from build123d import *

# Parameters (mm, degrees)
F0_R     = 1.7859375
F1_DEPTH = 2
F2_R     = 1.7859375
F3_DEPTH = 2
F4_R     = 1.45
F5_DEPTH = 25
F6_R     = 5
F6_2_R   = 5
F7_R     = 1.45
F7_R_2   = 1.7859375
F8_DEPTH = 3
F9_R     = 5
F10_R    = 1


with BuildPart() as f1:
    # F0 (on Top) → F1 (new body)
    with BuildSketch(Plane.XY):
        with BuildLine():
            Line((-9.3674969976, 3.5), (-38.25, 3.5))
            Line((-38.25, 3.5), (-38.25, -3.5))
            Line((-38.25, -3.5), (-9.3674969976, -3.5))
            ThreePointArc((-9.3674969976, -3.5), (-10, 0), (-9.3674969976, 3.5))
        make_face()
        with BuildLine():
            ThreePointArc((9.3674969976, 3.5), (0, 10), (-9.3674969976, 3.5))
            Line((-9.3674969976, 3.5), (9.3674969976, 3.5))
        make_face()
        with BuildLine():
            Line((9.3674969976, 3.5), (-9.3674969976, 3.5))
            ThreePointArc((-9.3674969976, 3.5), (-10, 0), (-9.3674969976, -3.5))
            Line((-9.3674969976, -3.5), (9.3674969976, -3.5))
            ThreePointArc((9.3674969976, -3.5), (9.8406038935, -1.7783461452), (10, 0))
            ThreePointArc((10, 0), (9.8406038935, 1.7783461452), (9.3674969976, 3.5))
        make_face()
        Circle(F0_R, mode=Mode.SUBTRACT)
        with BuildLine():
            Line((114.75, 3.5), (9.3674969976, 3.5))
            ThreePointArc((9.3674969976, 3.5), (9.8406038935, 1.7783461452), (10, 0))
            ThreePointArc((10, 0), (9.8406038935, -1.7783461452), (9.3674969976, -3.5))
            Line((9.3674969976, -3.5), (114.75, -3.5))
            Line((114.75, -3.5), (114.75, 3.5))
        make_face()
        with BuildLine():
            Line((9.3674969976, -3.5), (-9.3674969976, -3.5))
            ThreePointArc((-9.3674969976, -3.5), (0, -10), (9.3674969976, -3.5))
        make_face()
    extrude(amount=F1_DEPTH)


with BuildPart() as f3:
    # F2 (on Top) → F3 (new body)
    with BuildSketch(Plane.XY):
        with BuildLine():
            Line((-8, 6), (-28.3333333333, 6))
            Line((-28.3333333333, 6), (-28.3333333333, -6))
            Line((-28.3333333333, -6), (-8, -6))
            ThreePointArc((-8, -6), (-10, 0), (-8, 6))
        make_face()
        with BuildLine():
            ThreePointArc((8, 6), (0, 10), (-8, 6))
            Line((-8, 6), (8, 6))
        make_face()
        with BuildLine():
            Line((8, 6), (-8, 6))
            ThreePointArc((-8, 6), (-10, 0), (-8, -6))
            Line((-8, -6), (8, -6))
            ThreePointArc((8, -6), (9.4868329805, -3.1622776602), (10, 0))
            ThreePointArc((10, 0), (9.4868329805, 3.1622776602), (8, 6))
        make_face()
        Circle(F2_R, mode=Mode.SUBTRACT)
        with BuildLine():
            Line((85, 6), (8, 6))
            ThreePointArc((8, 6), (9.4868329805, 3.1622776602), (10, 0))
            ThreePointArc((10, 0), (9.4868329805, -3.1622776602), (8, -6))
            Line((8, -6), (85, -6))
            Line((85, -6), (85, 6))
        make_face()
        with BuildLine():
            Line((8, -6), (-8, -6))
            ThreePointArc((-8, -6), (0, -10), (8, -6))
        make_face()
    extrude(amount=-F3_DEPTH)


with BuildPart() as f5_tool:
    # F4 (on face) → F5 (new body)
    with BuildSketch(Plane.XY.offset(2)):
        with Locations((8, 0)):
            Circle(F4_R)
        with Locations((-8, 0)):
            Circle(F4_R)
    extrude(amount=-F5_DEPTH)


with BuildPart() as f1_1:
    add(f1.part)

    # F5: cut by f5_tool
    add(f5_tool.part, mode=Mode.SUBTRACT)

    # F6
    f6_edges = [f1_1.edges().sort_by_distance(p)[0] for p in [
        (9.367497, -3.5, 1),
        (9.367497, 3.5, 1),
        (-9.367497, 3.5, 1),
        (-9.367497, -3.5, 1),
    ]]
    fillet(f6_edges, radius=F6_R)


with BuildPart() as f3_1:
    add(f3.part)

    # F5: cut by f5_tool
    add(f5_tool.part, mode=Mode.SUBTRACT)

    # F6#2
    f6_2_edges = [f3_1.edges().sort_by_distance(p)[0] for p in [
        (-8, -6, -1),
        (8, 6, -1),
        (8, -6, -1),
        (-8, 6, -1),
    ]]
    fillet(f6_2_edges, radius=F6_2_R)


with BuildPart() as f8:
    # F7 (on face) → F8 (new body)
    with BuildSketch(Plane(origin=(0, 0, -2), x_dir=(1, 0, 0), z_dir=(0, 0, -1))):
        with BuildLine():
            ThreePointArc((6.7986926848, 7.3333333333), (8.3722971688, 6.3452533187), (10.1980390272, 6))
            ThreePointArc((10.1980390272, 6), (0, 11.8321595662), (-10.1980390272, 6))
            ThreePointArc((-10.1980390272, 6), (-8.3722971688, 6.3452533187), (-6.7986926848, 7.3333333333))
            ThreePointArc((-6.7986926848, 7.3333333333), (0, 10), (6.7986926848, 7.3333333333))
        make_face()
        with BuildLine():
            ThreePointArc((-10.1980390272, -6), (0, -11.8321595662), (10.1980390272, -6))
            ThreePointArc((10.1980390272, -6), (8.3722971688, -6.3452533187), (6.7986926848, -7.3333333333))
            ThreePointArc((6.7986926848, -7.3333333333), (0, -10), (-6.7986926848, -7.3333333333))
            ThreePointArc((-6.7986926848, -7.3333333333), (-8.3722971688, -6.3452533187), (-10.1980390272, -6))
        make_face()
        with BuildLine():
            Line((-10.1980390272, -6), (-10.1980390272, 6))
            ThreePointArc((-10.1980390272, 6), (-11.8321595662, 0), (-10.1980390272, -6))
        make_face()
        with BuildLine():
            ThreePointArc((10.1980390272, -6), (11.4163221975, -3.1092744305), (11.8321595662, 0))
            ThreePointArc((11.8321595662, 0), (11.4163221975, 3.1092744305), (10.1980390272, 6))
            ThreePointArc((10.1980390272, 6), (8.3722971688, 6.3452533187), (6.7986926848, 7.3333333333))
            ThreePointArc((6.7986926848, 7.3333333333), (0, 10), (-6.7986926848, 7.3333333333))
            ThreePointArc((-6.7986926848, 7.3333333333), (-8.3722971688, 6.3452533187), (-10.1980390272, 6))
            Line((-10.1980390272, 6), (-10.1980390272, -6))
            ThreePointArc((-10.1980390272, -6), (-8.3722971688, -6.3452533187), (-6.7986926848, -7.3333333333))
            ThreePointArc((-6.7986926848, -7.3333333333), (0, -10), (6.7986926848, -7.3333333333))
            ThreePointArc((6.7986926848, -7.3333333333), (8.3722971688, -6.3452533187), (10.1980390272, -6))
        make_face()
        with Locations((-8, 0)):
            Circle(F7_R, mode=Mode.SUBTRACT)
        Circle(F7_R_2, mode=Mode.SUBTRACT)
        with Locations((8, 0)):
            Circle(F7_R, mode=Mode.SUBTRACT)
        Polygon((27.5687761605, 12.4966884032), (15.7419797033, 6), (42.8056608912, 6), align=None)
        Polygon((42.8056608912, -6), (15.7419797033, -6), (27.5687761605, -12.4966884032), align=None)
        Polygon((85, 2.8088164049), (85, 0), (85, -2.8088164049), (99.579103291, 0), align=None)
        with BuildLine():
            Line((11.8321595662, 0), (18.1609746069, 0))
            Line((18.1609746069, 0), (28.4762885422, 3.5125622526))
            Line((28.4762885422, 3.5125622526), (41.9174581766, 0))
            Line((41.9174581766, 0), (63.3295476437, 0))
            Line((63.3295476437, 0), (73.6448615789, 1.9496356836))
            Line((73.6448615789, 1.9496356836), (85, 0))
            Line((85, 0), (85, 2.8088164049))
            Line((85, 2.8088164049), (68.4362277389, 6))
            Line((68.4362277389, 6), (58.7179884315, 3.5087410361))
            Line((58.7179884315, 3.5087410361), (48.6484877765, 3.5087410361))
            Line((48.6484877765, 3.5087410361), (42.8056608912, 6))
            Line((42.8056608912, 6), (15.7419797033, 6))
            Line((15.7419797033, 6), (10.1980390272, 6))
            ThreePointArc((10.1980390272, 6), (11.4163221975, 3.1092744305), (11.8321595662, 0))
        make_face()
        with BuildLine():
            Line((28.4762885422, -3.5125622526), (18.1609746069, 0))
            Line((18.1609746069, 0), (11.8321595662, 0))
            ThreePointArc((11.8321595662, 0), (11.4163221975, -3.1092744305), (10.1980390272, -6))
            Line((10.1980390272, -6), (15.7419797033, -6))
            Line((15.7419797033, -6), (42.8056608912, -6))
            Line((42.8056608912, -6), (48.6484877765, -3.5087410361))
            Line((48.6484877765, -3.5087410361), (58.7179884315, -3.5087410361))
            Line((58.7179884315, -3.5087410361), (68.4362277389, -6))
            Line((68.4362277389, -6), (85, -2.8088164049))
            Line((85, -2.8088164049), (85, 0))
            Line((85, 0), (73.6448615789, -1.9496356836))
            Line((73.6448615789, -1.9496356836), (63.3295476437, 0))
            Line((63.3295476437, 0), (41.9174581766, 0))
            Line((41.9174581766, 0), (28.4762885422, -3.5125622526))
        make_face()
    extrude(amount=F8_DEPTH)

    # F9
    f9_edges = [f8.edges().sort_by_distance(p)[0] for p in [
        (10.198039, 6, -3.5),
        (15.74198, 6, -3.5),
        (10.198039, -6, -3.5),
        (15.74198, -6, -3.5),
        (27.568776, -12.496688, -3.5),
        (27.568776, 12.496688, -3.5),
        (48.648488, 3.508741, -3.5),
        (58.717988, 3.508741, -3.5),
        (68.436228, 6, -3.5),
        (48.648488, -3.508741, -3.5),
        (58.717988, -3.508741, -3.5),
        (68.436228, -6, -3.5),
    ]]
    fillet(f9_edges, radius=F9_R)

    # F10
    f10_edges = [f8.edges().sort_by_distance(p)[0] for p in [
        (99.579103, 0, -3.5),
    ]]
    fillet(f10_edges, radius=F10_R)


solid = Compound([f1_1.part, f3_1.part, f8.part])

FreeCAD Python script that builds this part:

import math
import FreeCAD as App
import Part
import Sketcher
Q = App.Units.Quantity


def edges_at(feature, points):
    """Names of the edges that pass closest to the given points."""
    edges = feature.Shape.Edges
    near = lambda p: min(range(len(edges)), key=lambda i: edges[i].distToShape(Part.Vertex(*p))[0])
    return sorted({f"Edge{near(p) + 1}" for p in points})


def add_polygon(sketch, points):
    """Adds a closed chain of lines whose ends are joined by coincident constraints."""
    first, n = sketch.GeometryCount, len(points)
    for a, b in zip(points, points[1:] + points[:1]):
        sketch.addGeometry(Part.LineSegment(App.Vector(*a, 0), App.Vector(*b, 0)), False)
    for i in range(n):
        sketch.addConstraint(Sketcher.Constraint("Coincident", first + i, 2, first + (i + 1) % n, 1))

doc = App.newDocument("Part")
body = doc.addObject("PartDesign::Body", "Body")

# Sketch on XY plane
sketch1 = doc.addObject("Sketcher::SketchObject", "Sketch")
body.addObject(sketch1)
sketch1.AttachmentSupport = (doc.XY_Plane, [""])
sketch1.MapMode = "FlatFace"
sketch1.addGeometry(Part.LineSegment(App.Vector(-9.4, 3.5, 0), App.Vector(-38.2, 3.5, 0)), False)
sketch1.addGeometry(Part.LineSegment(App.Vector(-38.2, 3.5, 0), App.Vector(-38.2, -3.5, 0)), False)
sketch1.addGeometry(Part.LineSegment(App.Vector(-38.2, -3.5, 0), App.Vector(-9.4, -3.5, 0)), False)
sketch1.addGeometry(Part.ArcOfCircle(Part.Circle(App.Vector(0, 0, 0), App.Vector(0, 0, 1), 10), math.radians(-160), math.radians(-20)), False)
sketch1.addGeometry(Part.LineSegment(App.Vector(9.4, -3.5, 0), App.Vector(114.8, -3.5, 0)), False)
sketch1.addGeometry(Part.LineSegment(App.Vector(114.8, -3.5, 0), App.Vector(114.8, 3.5, 0)), False)
sketch1.addGeometry(Part.LineSegment(App.Vector(114.8, 3.5, 0), App.Vector(9.4, 3.5, 0)), False)
sketch1.addGeometry(Part.ArcOfCircle(Part.Circle(App.Vector(0, 0, 0), App.Vector(0, 0, 1), 10), math.radians(20), math.radians(160)), False)
sketch1.addGeometry(Part.Circle(App.Vector(0, 0, 0), App.Vector(0, 0, 1), 1.8), False)
sketch1.addConstraint(Sketcher.Constraint("Coincident", 0, 2, 1, 1))
sketch1.addConstraint(Sketcher.Constraint("Coincident", 1, 2, 2, 1))
sketch1.addConstraint(Sketcher.Constraint("Coincident", 2, 2, 3, 1))
sketch1.addConstraint(Sketcher.Constraint("Coincident", 3, 2, 4, 1))
sketch1.addConstraint(Sketcher.Constraint("Coincident", 4, 2, 5, 1))
sketch1.addConstraint(Sketcher.Constraint("Coincident", 5, 2, 6, 1))
sketch1.addConstraint(Sketcher.Constraint("Coincident", 6, 2, 7, 1))
sketch1.addConstraint(Sketcher.Constraint("Coincident", 7, 2, 0, 1))
sketch1.addConstraint(Sketcher.Constraint("Horizontal", 0))
sketch1.addConstraint(Sketcher.Constraint("Vertical", 1))
sketch1.addConstraint(Sketcher.Constraint("Horizontal", 2))
sketch1.addConstraint(Sketcher.Constraint("Horizontal", 4))
sketch1.addConstraint(Sketcher.Constraint("Vertical", 5))
sketch1.addConstraint(Sketcher.Constraint("Horizontal", 6))
sketch1.addConstraint(Sketcher.Constraint("Coincident", 3, 3, -1, 1))
sketch1.addConstraint(Sketcher.Constraint("Coincident", 7, 3, -1, 1))
sketch1.addConstraint(Sketcher.Constraint("Coincident", 8, 3, -1, 1))
sketch1.addConstraint(Sketcher.Constraint("Equal", 3, 7))
sketch1.addConstraint(Sketcher.Constraint("Horizontal", 2, 2, 3, 2))
sketch1.addConstraint(Sketcher.Constraint("Horizontal", 0, 2, 5, 2))
sketch1.addConstraint(Sketcher.Constraint("Vertical", 3, 2, 6, 2))
sketch1.addConstraint(Sketcher.Constraint("Radius", 3, Q("10 mm")))
sketch1.addConstraint(Sketcher.Constraint("DistanceY", 1, 2, 1, 1, Q("7 mm")))
sketch1.addConstraint(Sketcher.Constraint("DistanceX", 0, 2, -1, 1, Q("38.25 mm")))
sketch1.addConstraint(Sketcher.Constraint("DistanceX", -1, 1, 4, 2, Q("114.75 mm")))
sketch1.addConstraint(Sketcher.Constraint("Diameter", 8, Q("3.571875 mm")))
pad1 = doc.addObject("PartDesign::Pad", "Pad")
body.addObject(pad1)
pad1.Profile = sketch1
pad1.Length = 2
body2 = doc.addObject("PartDesign::Body", "Body001")

# Sketch on XY plane
sketch2 = doc.addObject("Sketcher::SketchObject", "Sketch001")
body2.addObject(sketch2)
sketch2.AttachmentSupport = (doc.getObject("XY_Plane001"), [""])
sketch2.MapMode = "FlatFace"
sketch2.addGeometry(Part.LineSegment(App.Vector(-8, 6, 0), App.Vector(-28.3, 6, 0)), False)
sketch2.addGeometry(Part.LineSegment(App.Vector(-28.3, 6, 0), App.Vector(-28.3, -6, 0)), False)
sketch2.addGeometry(Part.LineSegment(App.Vector(-28.3, -6, 0), App.Vector(-8, -6, 0)), False)
sketch2.addGeometry(Part.ArcOfCircle(Part.Circle(App.Vector(0, 0, 0), App.Vector(0, 0, 1), 10), math.radians(-143), math.radians(-37)), False)
sketch2.addGeometry(Part.LineSegment(App.Vector(8, -6, 0), App.Vector(85, -6, 0)), False)
sketch2.addGeometry(Part.LineSegment(App.Vector(85, -6, 0), App.Vector(85, 6, 0)), False)
sketch2.addGeometry(Part.LineSegment(App.Vector(85, 6, 0), App.Vector(8, 6, 0)), False)
sketch2.addGeometry(Part.ArcOfCircle(Part.Circle(App.Vector(0, 0, 0), App.Vector(0, 0, 1), 10), math.radians(37), math.radians(143)), False)
sketch2.addGeometry(Part.Circle(App.Vector(0, 0, 0), App.Vector(0, 0, 1), 1.8), False)
sketch2.addConstraint(Sketcher.Constraint("Coincident", 0, 2, 1, 1))
sketch2.addConstraint(Sketcher.Constraint("Coincident", 1, 2, 2, 1))
sketch2.addConstraint(Sketcher.Constraint("Coincident", 2, 2, 3, 1))
sketch2.addConstraint(Sketcher.Constraint("Coincident", 3, 2, 4, 1))
sketch2.addConstraint(Sketcher.Constraint("Coincident", 4, 2, 5, 1))
sketch2.addConstraint(Sketcher.Constraint("Coincident", 5, 2, 6, 1))
sketch2.addConstraint(Sketcher.Constraint("Coincident", 6, 2, 7, 1))
sketch2.addConstraint(Sketcher.Constraint("Coincident", 7, 2, 0, 1))
sketch2.addConstraint(Sketcher.Constraint("Horizontal", 0))
sketch2.addConstraint(Sketcher.Constraint("Vertical", 1))
sketch2.addConstraint(Sketcher.Constraint("Horizontal", 2))
sketch2.addConstraint(Sketcher.Constraint("Horizontal", 4))
sketch2.addConstraint(Sketcher.Constraint("Vertical", 5))
sketch2.addConstraint(Sketcher.Constraint("Horizontal", 6))
sketch2.addConstraint(Sketcher.Constraint("Coincident", 3, 3, -1, 1))
sketch2.addConstraint(Sketcher.Constraint("Coincident", 7, 3, -1, 1))
sketch2.addConstraint(Sketcher.Constraint("Coincident", 8, 3, -1, 1))
sketch2.addConstraint(Sketcher.Constraint("Equal", 3, 7))
sketch2.addConstraint(Sketcher.Constraint("Horizontal", 2, 2, 3, 2))
sketch2.addConstraint(Sketcher.Constraint("Horizontal", 0, 2, 5, 2))
sketch2.addConstraint(Sketcher.Constraint("Vertical", 3, 2, 6, 2))
sketch2.addConstraint(Sketcher.Constraint("Radius", 3, Q("10 mm")))
sketch2.addConstraint(Sketcher.Constraint("DistanceX", 4, 1, 4, 2, Q("77 mm")))
sketch2.addConstraint(Sketcher.Constraint("DistanceY", 1, 2, 1, 1, Q("12 mm")))
sketch2.addConstraint(Sketcher.Constraint("Diameter", 8, Q("3.571875 mm")))
sketch2.addConstraint(Sketcher.Constraint("DistanceX", 0, 2, 0, 1, Q("20.333333 mm")))
pad2 = doc.addObject("PartDesign::Pad", "Pad001")
body2.addObject(pad2)
pad2.Profile = sketch2
pad2.Length = 2
pad2.Reversed = True
body3 = doc.addObject("PartDesign::Body", "Body002")
body3.AllowCompound = True

# Sketch on XY plane
sketch3 = doc.addObject("Sketcher::SketchObject", "Sketch002")
body3.addObject(sketch3)
sketch3.AttachmentSupport = (doc.getObject("XY_Plane002"), [""])
sketch3.MapMode = "FlatFace"
sketch3.AttachmentOffset = App.Placement(App.Vector(0, 0, 2), App.Rotation())
sketch3.addGeometry(Part.Circle(App.Vector(8, 0, 0), App.Vector(0, 0, 1), 1.4), False)
sketch3.addGeometry(Part.Circle(App.Vector(-8, 0, 0), App.Vector(0, 0, 1), 1.4), False)
sketch3.addConstraint(Sketcher.Constraint("Equal", 0, 1))
sketch3.addConstraint(Sketcher.Constraint("Symmetric", 0, 3, 1, 3, -1, 1))
sketch3.addConstraint(Sketcher.Constraint("PointOnObject", 0, 3, -1))
sketch3.addConstraint(Sketcher.Constraint("Diameter", 0, Q("2.9 mm")))
sketch3.addConstraint(Sketcher.Constraint("DistanceX", -1, 1, 0, 3, Q("8 mm")))
pad3 = doc.addObject("PartDesign::Pad", "Pad002")
body3.addObject(pad3)
pad3.Profile = sketch3
pad3.Length = 25
pad3.Reversed = True
doc.recompute()

body4 = doc.addObject("PartDesign::Body", "Body003")
body4.BaseFeature = body3
boolean = doc.addObject("PartDesign::Boolean", "Boolean")
body.addObject(boolean)
boolean.Type = "Cut"
boolean.addObjects([body4])
doc.recompute()

fillet = doc.addObject("PartDesign::Fillet", "Fillet")
body.addObject(fillet)
fillet.Base = (boolean, edges_at(boolean, [
    (9.367, -3.5, 1),
    (9.367, 3.5, 1),
    (-9.367, 3.5, 1),
    (-9.367, -3.5, 1),
]))
fillet.Radius = 5
doc.recompute()

boolean2 = doc.addObject("PartDesign::Boolean", "Boolean001")
body2.addObject(boolean2)
boolean2.Type = "Cut"
boolean2.addObjects([body3])
doc.recompute()

fillet2 = doc.addObject("PartDesign::Fillet", "Fillet001")
body2.addObject(fillet2)
fillet2.Base = (boolean2, edges_at(boolean2, [
    (-8, -6, -1),
    (8, 6, -1),
    (8, -6, -1),
    (-8, 6, -1),
]))
fillet2.Radius = 5
body5 = doc.addObject("PartDesign::Body", "Body004")

# Sketch on XY plane
sketch4 = doc.addObject("Sketcher::SketchObject", "Sketch003")
body5.addObject(sketch4)
sketch4.AttachmentSupport = (doc.getObject("XY_Plane004"), [""])
sketch4.MapMode = "FlatFace"
sketch4.AttachmentOffset = App.Placement(App.Vector(0, 0, -2), App.Rotation())
sketch4.addGeometry(Part.ArcOfCircle(Part.Circle(App.Vector(0, 0, 0), App.Vector(0, 0, 1), 11.8), math.radians(-150), math.radians(-30)), False)  # 0
sketch4.addGeometry(Part.ArcOfCircle(Part.Circle(App.Vector(0, 0, 0), App.Vector(0, 0, 1), 11.8), math.radians(150), math.radians(210)), False)  # 1
sketch4.addGeometry(Part.ArcOfCircle(Part.Circle(App.Vector(0, 0, 0), App.Vector(0, 0, 1), 11.8), math.radians(30), math.radians(150)), False)  # 2
sketch4.addGeometry(Part.LineSegment(App.Vector(10.2, 6, 0), App.Vector(15.7, 6, 0)), False)  # 3
sketch4.addGeometry(Part.LineSegment(App.Vector(15.7, 6, 0), App.Vector(27.6, 12.5, 0)), False)  # 4
sketch4.addGeometry(Part.LineSegment(App.Vector(27.6, 12.5, 0), App.Vector(42.8, 6, 0)), False)  # 5
sketch4.addGeometry(Part.LineSegment(App.Vector(42.8, 6, 0), App.Vector(48.6, 3.5, 0)), False)  # 6
sketch4.addGeometry(Part.LineSegment(App.Vector(48.6, 3.5, 0), App.Vector(58.7, 3.5, 0)), False)  # 7
sketch4.addGeometry(Part.LineSegment(App.Vector(58.7, 3.5, 0), App.Vector(68.4, 6, 0)), False)  # 8
sketch4.addGeometry(Part.LineSegment(App.Vector(68.4, 6, 0), App.Vector(85, 2.8, 0)), False)  # 9
sketch4.addGeometry(Part.LineSegment(App.Vector(85, 2.8, 0), App.Vector(99.6, 0, 0)), False)  # 10
sketch4.addGeometry(Part.LineSegment(App.Vector(99.6, 0, 0), App.Vector(85, -2.8, 0)), False)  # 11
sketch4.addGeometry(Part.LineSegment(App.Vector(85, -2.8, 0), App.Vector(68.4, -6, 0)), False)  # 12
sketch4.addGeometry(Part.LineSegment(App.Vector(68.4, -6, 0), App.Vector(58.7, -3.5, 0)), False)  # 13
sketch4.addGeometry(Part.LineSegment(App.Vector(58.7, -3.5, 0), App.Vector(48.6, -3.5, 0)), False)  # 14
sketch4.addGeometry(Part.LineSegment(App.Vector(48.6, -3.5, 0), App.Vector(42.8, -6, 0)), False)  # 15
sketch4.addGeometry(Part.LineSegment(App.Vector(42.8, -6, 0), App.Vector(27.6, -12.5, 0)), False)  # 16
sketch4.addGeometry(Part.LineSegment(App.Vector(27.6, -12.5, 0), App.Vector(15.7, -6, 0)), False)  # 17
sketch4.addGeometry(Part.LineSegment(App.Vector(15.7, -6, 0), App.Vector(10.2, -6, 0)), False)  # 18
add_polygon(sketch4, [(18.2, 0), (28.5, -3.5), (41.9, 0), (28.5, 3.5)])  # lines 19-22
add_polygon(sketch4, [(63.3, 0), (73.6, -1.9), (85, 0), (73.6, 1.9)])  # lines 23-26
sketch4.addGeometry(Part.Circle(App.Vector(-8, 0, 0), App.Vector(0, 0, 1), 1.4), False)  # 27
sketch4.addGeometry(Part.Circle(App.Vector(0, 0, 0), App.Vector(0, 0, 1), 1.8), False)  # 28
sketch4.addGeometry(Part.Circle(App.Vector(8, 0, 0), App.Vector(0, 0, 1), 1.4), False)  # 29
sketch4.addConstraint(Sketcher.Constraint("Tangent", 0, 1, 1, 2))
sketch4.addConstraint(Sketcher.Constraint("Tangent", 1, 1, 2, 2))
sketch4.addConstraint(Sketcher.Constraint("Coincident", 2, 1, 3, 1))
sketch4.addConstraint(Sketcher.Constraint("Coincident", 3, 2, 4, 1))
sketch4.addConstraint(Sketcher.Constraint("Coincident", 4, 2, 5, 1))
sketch4.addConstraint(Sketcher.Constraint("Coincident", 5, 2, 6, 1))
sketch4.addConstraint(Sketcher.Constraint("Coincident", 6, 2, 7, 1))
sketch4.addConstraint(Sketcher.Constraint("Coincident", 7, 2, 8, 1))
sketch4.addConstraint(Sketcher.Constraint("Coincident", 8, 2, 9, 1))
sketch4.addConstraint(Sketcher.Constraint("Coincident", 9, 2, 10, 1))
sketch4.addConstraint(Sketcher.Constraint("Coincident", 10, 2, 11, 1))
sketch4.addConstraint(Sketcher.Constraint("Coincident", 11, 2, 12, 1))
sketch4.addConstraint(Sketcher.Constraint("Coincident", 12, 2, 13, 1))
sketch4.addConstraint(Sketcher.Constraint("Coincident", 13, 2, 14, 1))
sketch4.addConstraint(Sketcher.Constraint("Coincident", 14, 2, 15, 1))
sketch4.addConstraint(Sketcher.Constraint("Coincident", 15, 2, 16, 1))
sketch4.addConstraint(Sketcher.Constraint("Coincident", 16, 2, 17, 1))
sketch4.addConstraint(Sketcher.Constraint("Coincident", 17, 2, 18, 1))
sketch4.addConstraint(Sketcher.Constraint("Coincident", 18, 2, 0, 2))
sketch4.addConstraint(Sketcher.Constraint("Horizontal", 3))
sketch4.addConstraint(Sketcher.Constraint("Horizontal", 7))
sketch4.addConstraint(Sketcher.Constraint("Horizontal", 14))
sketch4.addConstraint(Sketcher.Constraint("Horizontal", 18))
sketch4.addConstraint(Sketcher.Constraint("Coincident", 0, 3, -1, 1))
sketch4.addConstraint(Sketcher.Constraint("Coincident", 2, 3, -1, 1))
sketch4.addConstraint(Sketcher.Constraint("Coincident", 28, 3, -1, 1))
sketch4.addConstraint(Sketcher.Constraint("Equal", 27, 29))
sketch4.addConstraint(Sketcher.Constraint("Symmetric", 27, 3, 29, 3, -1, 1))
sketch4.addConstraint(Sketcher.Constraint("Symmetric", 9, 2, 11, 2, -1))
sketch4.addConstraint(Sketcher.Constraint("Symmetric", 8, 2, 12, 2, -1))
sketch4.addConstraint(Sketcher.Constraint("Symmetric", 7, 2, 13, 2, -1))
sketch4.addConstraint(Sketcher.Constraint("Symmetric", 5, 2, 15, 2, -1))
sketch4.addConstraint(Sketcher.Constraint("Symmetric", 4, 2, 16, 2, -1))
sketch4.addConstraint(Sketcher.Constraint("Symmetric", 3, 2, 17, 2, -1))
sketch4.addConstraint(Sketcher.Constraint("Symmetric", 19, 2, 21, 2, -1))
sketch4.addConstraint(Sketcher.Constraint("Symmetric", 23, 2, 25, 2, -1))
sketch4.addConstraint(Sketcher.Constraint("PointOnObject", 27, 3, -1))
sketch4.addConstraint(Sketcher.Constraint("PointOnObject", 10, 2, -1))
sketch4.addConstraint(Sketcher.Constraint("PointOnObject", 20, 2, -1))
sketch4.addConstraint(Sketcher.Constraint("PointOnObject", 22, 2, -1))
sketch4.addConstraint(Sketcher.Constraint("PointOnObject", 24, 2, -1))
sketch4.addConstraint(Sketcher.Constraint("PointOnObject", 26, 2, -1))
sketch4.addConstraint(Sketcher.Constraint("Parallel", 5, 6))
sketch4.addConstraint(Sketcher.Constraint("Parallel", 9, 10))
sketch4.addConstraint(Sketcher.Constraint("Parallel", 15, 16))
sketch4.addConstraint(Sketcher.Constraint("Horizontal", 1, 1, 2, 1))
sketch4.addConstraint(Sketcher.Constraint("Horizontal", 3, 2, 5, 2))
sketch4.addConstraint(Sketcher.Constraint("Horizontal", 5, 2, 8, 2))
sketch4.addConstraint(Sketcher.Constraint("Horizontal", 0, 1, 12, 2))
sketch4.addConstraint(Sketcher.Constraint("Vertical", 11, 2, 24, 2))
sketch4.addConstraint(Sketcher.Constraint("Diameter", 27, Q("2.9 mm")))
sketch4.addConstraint(Sketcher.Constraint("DistanceX", 27, 3, -1, 1, Q("8 mm")))
sketch4.addConstraint(Sketcher.Constraint("DistanceY", 0, 1, -1, 1, Q("6 mm")))
sketch4.addConstraint(Sketcher.Constraint("DistanceX", -1, 1, 9, 2, Q("85 mm")))
sketch4.addConstraint(Sketcher.Constraint("Radius", 0, Q("11.83216 mm")))
sketch4.addConstraint(Sketcher.Constraint("Diameter", 28, Q("3.571875 mm")))
sketch4.addConstraint(Sketcher.Constraint("DistanceX", 7, 1, 7, 2, Q("10.069501 mm")))
sketch4.addConstraint(Sketcher.Constraint("DistanceX", 3, 1, 3, 2, Q("5.543941 mm")))
sketch4.addConstraint(Sketcher.Constraint("Distance", 6, Q("6.351771 mm")))
sketch4.addConstraint(Sketcher.Constraint("Distance", 9, Q("16.868379 mm")))
sketch4.addConstraint(Sketcher.Constraint("Distance", 10, Q("14.847212 mm")))
sketch4.addConstraint(Sketcher.Constraint("Distance", 23, Q("10.497942 mm")))
sketch4.addConstraint(Sketcher.Constraint("DistanceY", -1, 1, 4, 2, Q("12.496688 mm")))
sketch4.addConstraint(Sketcher.Constraint("DistanceX", -1, 1, 5, 2, Q("42.805661 mm")))
sketch4.addConstraint(Sketcher.Constraint("DistanceY", -1, 1, 6, 2, Q("3.508741 mm")))
sketch4.addConstraint(Sketcher.Constraint("DistanceX", -1, 1, 19, 2, Q("28.476289 mm")))
sketch4.addConstraint(Sketcher.Constraint("DistanceX", -1, 1, 20, 2, Q("41.917458 mm")))
sketch4.addConstraint(Sketcher.Constraint("DistanceX", -1, 1, 23, 2, Q("73.644862 mm")))
sketch4.addConstraint(Sketcher.Constraint("DistanceY", 19, 2, 4, 2, Q("16.009251 mm")))
sketch4.addConstraint(Sketcher.Constraint("DistanceY", 11, 2, 23, 2, Q("0.859181 mm")))
sketch4.addConstraint(Sketcher.Constraint("Distance", 19, Q("10.896963 mm")))
pad4 = doc.addObject("PartDesign::Pad", "Pad003")
body5.addObject(pad4)
pad4.Profile = sketch4
pad4.Length = 3
pad4.Reversed = True
doc.recompute()

fillet3 = doc.addObject("PartDesign::Fillet", "Fillet002")
body5.addObject(fillet3)
fillet3.Base = (pad4, edges_at(pad4, [
    (10.198, 6, -3.5),
    (15.742, 6, -3.5),
    (10.198, -6, -3.5),
    (15.742, -6, -3.5),
    (27.569, -12.497, -3.5),
    (27.569, 12.497, -3.5),
    (48.648, 3.509, -3.5),
    (58.718, 3.509, -3.5),
    (68.436, 6, -3.5),
    (48.648, -3.509, -3.5),
    (58.718, -3.509, -3.5),
    (68.436, -6, -3.5),
]))
fillet3.Radius = 5
doc.recompute()

fillet4 = doc.addObject("PartDesign::Fillet", "Fillet003")
body5.addObject(fillet4)
fillet4.Base = (fillet3, edges_at(fillet3, [(99.579, 0, -3.5)]))
fillet4.Radius = 1

doc.recompute()
